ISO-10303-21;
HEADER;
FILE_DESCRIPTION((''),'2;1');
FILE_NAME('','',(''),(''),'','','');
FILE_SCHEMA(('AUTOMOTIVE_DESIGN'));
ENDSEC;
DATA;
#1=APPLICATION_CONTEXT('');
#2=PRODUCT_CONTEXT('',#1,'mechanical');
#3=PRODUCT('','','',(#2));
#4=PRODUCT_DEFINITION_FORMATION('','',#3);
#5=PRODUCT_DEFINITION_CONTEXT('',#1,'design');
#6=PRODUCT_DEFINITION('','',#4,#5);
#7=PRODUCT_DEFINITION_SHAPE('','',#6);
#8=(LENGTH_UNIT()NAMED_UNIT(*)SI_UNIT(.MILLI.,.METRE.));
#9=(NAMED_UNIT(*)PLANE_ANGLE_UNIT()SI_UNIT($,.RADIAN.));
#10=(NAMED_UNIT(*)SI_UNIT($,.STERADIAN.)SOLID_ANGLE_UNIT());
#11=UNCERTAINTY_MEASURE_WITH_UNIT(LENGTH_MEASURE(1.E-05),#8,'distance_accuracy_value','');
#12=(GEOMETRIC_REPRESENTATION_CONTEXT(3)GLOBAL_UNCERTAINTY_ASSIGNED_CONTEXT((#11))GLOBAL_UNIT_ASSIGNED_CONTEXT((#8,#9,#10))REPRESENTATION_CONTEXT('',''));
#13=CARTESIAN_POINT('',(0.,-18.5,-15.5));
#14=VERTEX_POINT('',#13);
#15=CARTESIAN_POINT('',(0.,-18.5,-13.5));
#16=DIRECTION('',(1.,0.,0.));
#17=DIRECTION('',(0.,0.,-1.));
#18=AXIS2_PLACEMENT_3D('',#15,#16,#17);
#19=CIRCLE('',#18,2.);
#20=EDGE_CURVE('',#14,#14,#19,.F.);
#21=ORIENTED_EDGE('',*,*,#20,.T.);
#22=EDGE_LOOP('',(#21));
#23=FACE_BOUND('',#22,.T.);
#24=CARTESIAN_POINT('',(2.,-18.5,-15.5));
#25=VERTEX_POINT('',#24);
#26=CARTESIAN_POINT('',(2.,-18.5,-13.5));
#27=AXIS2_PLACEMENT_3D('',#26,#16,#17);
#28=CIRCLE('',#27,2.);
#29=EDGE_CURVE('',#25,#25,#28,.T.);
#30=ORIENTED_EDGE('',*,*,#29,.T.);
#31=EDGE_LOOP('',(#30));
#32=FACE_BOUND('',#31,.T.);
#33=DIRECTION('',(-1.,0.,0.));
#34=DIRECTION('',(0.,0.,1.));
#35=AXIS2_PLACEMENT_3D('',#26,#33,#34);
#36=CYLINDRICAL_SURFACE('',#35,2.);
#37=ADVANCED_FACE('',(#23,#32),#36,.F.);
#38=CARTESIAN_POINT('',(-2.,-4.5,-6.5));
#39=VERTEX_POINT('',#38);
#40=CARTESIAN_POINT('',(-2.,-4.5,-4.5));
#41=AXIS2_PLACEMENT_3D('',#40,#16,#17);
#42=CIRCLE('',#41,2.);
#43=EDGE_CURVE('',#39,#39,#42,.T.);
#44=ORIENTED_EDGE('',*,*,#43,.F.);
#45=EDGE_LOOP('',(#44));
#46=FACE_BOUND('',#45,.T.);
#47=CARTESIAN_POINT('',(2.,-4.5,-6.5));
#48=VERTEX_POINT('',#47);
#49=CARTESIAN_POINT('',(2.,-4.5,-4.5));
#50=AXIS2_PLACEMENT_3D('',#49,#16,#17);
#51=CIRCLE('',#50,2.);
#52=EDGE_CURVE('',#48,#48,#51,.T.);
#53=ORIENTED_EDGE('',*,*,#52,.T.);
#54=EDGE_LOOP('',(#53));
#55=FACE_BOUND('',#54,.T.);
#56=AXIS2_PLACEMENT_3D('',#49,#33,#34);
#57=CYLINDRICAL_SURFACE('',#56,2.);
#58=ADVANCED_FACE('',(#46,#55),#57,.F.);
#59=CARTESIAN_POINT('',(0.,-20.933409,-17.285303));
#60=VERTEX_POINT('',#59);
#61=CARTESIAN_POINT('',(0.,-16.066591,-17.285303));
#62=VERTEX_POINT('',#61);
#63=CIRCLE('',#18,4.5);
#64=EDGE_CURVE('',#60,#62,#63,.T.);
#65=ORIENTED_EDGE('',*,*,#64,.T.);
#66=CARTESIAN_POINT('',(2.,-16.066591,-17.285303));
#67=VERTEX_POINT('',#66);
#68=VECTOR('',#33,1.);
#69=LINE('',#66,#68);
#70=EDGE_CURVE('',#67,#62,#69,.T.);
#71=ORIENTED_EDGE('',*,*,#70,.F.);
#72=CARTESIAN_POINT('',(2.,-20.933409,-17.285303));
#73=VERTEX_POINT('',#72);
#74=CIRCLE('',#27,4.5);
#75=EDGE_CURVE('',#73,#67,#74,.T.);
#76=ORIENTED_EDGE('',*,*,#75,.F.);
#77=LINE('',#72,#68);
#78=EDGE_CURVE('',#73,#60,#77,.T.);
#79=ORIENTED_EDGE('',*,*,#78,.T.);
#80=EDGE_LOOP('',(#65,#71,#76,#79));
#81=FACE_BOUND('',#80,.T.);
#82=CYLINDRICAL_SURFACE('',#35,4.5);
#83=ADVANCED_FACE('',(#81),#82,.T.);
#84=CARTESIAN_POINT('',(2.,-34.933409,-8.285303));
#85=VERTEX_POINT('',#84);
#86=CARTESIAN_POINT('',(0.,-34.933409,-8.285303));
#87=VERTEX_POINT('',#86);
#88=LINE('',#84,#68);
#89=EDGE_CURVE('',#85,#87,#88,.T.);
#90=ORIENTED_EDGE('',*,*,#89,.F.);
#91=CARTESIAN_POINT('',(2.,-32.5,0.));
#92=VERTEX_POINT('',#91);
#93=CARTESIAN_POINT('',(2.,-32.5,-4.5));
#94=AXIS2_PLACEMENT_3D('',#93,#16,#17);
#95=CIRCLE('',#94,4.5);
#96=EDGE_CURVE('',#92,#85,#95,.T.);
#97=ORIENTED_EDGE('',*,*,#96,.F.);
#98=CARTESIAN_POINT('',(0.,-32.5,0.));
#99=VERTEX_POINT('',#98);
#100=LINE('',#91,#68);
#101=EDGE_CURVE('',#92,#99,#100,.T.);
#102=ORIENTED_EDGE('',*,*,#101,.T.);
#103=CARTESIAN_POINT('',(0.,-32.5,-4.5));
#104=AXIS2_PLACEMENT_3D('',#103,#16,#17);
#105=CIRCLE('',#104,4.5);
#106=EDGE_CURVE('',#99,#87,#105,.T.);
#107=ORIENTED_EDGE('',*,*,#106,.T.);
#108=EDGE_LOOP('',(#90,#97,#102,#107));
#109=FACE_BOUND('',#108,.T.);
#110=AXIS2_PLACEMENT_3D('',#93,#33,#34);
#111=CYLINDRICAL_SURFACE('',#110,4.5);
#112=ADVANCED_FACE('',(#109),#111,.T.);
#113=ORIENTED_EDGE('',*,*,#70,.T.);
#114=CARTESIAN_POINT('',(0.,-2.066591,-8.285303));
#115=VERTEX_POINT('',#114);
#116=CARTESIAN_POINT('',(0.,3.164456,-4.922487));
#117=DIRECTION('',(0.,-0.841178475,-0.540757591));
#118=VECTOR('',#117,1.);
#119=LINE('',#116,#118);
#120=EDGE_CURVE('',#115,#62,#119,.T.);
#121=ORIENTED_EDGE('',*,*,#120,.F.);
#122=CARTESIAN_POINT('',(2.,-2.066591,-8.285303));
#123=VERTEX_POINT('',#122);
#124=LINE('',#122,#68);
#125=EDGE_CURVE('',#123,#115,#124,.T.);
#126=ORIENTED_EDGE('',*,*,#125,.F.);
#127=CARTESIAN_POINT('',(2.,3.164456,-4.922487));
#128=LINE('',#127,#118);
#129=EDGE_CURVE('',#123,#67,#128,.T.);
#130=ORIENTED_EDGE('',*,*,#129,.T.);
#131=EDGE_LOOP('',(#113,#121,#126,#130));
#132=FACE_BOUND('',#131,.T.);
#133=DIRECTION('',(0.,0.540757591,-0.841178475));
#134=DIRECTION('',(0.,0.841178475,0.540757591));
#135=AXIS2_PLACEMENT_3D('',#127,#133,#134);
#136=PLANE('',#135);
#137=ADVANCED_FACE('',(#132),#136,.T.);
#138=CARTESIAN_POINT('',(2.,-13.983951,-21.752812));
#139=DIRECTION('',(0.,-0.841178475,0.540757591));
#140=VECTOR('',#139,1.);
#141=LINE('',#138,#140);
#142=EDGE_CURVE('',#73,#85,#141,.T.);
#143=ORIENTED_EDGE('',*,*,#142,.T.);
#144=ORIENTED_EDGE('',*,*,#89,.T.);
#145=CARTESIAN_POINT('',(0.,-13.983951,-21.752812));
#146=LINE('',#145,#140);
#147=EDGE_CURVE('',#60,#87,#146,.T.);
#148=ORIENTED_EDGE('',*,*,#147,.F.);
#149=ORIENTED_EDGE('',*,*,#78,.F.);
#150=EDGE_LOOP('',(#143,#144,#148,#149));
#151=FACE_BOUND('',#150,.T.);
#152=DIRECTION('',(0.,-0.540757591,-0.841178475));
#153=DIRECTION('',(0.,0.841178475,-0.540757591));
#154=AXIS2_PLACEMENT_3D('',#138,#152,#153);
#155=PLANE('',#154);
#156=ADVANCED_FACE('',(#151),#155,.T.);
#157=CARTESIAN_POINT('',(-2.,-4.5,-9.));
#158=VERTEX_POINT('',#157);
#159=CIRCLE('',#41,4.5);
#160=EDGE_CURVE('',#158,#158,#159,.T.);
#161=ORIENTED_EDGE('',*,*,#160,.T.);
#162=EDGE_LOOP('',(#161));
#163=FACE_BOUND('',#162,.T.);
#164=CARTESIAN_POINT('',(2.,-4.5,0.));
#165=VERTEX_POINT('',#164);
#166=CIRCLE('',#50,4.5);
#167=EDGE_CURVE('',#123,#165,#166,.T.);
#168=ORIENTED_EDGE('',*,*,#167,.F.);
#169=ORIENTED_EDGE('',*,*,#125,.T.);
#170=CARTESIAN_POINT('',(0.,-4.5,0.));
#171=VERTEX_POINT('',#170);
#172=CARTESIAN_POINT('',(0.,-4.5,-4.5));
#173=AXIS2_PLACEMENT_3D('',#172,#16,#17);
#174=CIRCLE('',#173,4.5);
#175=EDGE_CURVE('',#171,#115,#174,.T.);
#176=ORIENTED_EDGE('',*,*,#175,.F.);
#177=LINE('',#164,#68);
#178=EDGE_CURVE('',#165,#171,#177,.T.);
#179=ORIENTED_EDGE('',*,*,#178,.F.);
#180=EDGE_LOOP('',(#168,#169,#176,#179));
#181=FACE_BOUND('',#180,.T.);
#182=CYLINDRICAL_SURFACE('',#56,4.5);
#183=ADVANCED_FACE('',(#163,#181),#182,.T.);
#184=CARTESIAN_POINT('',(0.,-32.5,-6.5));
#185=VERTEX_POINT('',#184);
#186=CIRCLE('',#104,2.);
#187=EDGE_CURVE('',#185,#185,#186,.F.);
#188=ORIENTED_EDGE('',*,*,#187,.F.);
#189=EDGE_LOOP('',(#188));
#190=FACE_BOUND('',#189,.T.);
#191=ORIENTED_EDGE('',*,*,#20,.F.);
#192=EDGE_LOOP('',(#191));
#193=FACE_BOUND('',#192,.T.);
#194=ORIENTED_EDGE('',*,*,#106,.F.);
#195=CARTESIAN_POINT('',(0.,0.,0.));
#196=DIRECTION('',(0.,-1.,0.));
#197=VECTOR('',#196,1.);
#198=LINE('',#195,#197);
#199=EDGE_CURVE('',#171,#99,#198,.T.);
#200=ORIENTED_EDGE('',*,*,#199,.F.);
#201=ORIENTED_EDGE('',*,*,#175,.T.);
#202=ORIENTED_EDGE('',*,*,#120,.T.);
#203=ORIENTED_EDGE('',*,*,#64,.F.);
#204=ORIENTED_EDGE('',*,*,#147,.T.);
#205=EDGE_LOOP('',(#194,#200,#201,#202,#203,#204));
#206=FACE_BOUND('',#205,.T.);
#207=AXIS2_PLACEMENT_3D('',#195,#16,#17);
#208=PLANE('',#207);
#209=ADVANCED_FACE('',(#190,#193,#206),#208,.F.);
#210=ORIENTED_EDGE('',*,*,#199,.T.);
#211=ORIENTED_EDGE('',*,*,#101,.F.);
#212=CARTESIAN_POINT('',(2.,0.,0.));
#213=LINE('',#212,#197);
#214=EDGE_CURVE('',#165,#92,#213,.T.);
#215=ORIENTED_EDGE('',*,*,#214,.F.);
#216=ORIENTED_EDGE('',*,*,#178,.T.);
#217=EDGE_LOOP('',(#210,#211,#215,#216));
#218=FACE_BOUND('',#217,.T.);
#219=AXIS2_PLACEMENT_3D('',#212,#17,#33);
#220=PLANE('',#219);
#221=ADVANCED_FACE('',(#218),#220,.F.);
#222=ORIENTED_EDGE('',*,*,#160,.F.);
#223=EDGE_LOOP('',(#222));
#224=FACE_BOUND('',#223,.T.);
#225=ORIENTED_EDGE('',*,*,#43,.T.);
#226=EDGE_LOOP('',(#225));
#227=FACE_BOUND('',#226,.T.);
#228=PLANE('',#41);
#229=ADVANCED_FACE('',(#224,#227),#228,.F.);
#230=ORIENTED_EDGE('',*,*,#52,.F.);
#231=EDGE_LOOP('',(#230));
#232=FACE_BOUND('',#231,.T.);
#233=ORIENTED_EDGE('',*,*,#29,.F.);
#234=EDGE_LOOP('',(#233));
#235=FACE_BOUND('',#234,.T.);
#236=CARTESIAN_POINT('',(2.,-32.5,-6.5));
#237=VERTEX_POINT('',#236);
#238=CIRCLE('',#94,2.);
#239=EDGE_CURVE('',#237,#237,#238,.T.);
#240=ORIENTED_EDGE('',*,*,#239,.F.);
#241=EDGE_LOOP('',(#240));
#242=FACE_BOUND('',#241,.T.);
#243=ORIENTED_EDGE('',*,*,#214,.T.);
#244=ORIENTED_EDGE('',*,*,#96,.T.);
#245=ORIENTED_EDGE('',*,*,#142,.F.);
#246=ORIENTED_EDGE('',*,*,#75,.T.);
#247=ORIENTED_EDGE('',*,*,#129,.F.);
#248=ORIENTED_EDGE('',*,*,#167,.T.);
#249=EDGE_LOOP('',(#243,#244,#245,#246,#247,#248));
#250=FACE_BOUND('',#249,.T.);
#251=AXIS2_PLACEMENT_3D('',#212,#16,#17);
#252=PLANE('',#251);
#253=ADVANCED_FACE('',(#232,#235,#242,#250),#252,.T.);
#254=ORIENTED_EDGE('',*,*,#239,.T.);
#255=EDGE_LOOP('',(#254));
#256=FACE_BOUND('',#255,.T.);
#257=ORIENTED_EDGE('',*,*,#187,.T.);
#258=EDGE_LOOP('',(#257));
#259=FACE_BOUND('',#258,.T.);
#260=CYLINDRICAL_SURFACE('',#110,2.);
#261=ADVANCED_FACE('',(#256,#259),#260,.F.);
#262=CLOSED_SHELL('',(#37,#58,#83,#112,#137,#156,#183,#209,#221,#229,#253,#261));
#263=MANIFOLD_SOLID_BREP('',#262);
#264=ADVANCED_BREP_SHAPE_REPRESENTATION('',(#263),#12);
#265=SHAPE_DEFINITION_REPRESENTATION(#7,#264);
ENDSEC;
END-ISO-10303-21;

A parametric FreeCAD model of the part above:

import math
import FreeCAD as App
import Part
import Sketcher

doc = App.newDocument("Part")
body = doc.addObject("PartDesign::Body", "Body")

sketch1 = body.newObject("Sketcher::SketchObject", "Sketch")
sketch1.AttachmentSupport = (doc.getObject("YZ_Plane"), [""])
sketch1.MapMode = "FlatFace"
sketch1.addGeometry([
    Part.LineSegment(App.Vector(-16.1, -17.3, 0), App.Vector(-2.1, -8.3, 0)),
    Part.ArcOfCircle(Part.Circle(App.Vector(-4.5, -4.5, 0), App.Vector(0, 0, 1), 4.5), math.radians(-57), math.radians(90)),
    Part.LineSegment(App.Vector(-4.5, 0, 0), App.Vector(-32.5, 0, 0)),
    Part.ArcOfCircle(Part.Circle(App.Vector(-32.5, -4.5, 0), App.Vector(0, 0, 1), 4.5), math.radians(90), math.radians(237)),
    Part.LineSegment(App.Vector(-34.9, -8.3, 0), App.Vector(-20.9, -17.3, 0)),
    Part.ArcOfCircle(Part.Circle(App.Vector(-18.5, -13.5, 0), App.Vector(0, 0, 1), 4.5), math.radians(-123), math.radians(-57)),
], False)
sketch1.addConstraint([
    Sketcher.Constraint("Tangent", 0, 2, 1, 1),
    Sketcher.Constraint("Tangent", 1, 2, 2, 1),
    Sketcher.Constraint("Tangent", 2, 2, 3, 1),
    Sketcher.Constraint("Tangent", 3, 2, 4, 1),
    Sketcher.Constraint("Tangent", 4, 2, 5, 1),
    Sketcher.Constraint("Tangent", 5, 2, 0, 1),
    Sketcher.Constraint("Horizontal", 2),
    Sketcher.Constraint("Equal", 1, 3),
    Sketcher.Constraint("Equal", 3, 5),
    Sketcher.Constraint("PointOnObject", 1, 2, -1),
    Sketcher.Constraint("Horizontal", 0, 2, 3, 2),
    Sketcher.Constraint("Radius", 1, 4.5),
    Sketcher.Constraint("DistanceX", 2, 2, 2, 1, 28.0),
    Sketcher.Constraint("DistanceY", 5, 3, 3, 3, 9.0),
    Sketcher.Constraint("DistanceX", 1, 3, -1, 1, 4.5),
])
pad1 = body.newObject("PartDesign::Pad", "Pad")
pad1.Profile = sketch1
pad1.Length = 2

sketch2 = body.newObject("Sketcher::SketchObject", "Sketch001")
sketch2.AttachmentSupport = (doc.getObject("YZ_Plane"), [""])
sketch2.MapMode = "FlatFace"
sketch2.AttachmentOffset = App.Placement(App.Vector(0, 0, -2), App.Rotation())
sketch2.addGeometry(Part.Circle(App.Vector(-4.5, -4.5, 0), App.Vector(0, 0, 1), 4.5), False)
sketch2.addConstraint([
    Sketcher.Constraint("Diameter", 0, 9.0),
    Sketcher.Constraint("DistanceX", 0, 3, -1, 1, 4.5),
    Sketcher.Constraint("DistanceY", 0, 3, -1, 1, 4.5),
])
pad2 = body.newObject("PartDesign::Pad", "Pad001")
pad2.Profile = sketch2
pad2.Length = 2

sketch3 = body.newObject("Sketcher::SketchObject", "Sketch002")
sketch3.AttachmentSupport = (doc.getObject("YZ_Plane"), [""])
sketch3.MapMode = "FlatFace"
sketch3.addGeometry([
    Part.Circle(App.Vector(-4.5, -4.5, 0), App.Vector(0, 0, 1), 2),
    Part.Circle(App.Vector(-18.5, -13.5, 0), App.Vector(0, 0, 1), 2),
    Part.Circle(App.Vector(-32.5, -4.5, 0), App.Vector(0, 0, 1), 2),
], False)
sketch3.addConstraint([
    Sketcher.Constraint("Equal", 0, 1),
    Sketcher.Constraint("Equal", 1, 2),
    Sketcher.Constraint("Horizontal", 0, 3, 2, 3),
    Sketcher.Constraint("Diameter", 0, 4.0),
    Sketcher.Constraint("DistanceX", 1, 3, 0, 3, 14.0),
    Sketcher.Constraint("DistanceY", 1, 3, 0, 3, 9.0),
    Sketcher.Constraint("DistanceX", 2, 3, 1, 3, 14.0),
    Sketcher.Constraint("DistanceX", 0, 3, -1, 1, 4.5),
    Sketcher.Constraint("DistanceY", 0, 3, -1, 1, 4.5),
])
pocket1 = body.newObject("PartDesign::Pocket", "Pocket")
pocket1.Profile = sketch3
pocket1.Type = "ThroughAll"
pocket1.Midplane = True

doc.recompute()
